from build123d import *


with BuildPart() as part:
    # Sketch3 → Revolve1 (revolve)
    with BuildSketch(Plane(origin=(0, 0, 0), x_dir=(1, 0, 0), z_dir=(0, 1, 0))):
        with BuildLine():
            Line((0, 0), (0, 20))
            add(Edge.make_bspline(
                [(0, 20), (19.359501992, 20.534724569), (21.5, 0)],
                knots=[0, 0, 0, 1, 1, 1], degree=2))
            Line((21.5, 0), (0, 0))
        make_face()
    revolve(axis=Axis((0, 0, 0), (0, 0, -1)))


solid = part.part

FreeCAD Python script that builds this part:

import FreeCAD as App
import Part
import Sketcher
from FreeCAD import Vector

doc = App.newDocument("Part")
body = doc.addObject("PartDesign::Body", "Body")

# Sketch on XZ plane
sketch1 = doc.addObject("Sketcher::SketchObject", "Sketch")
body.addObject(sketch1)
sketch1.AttachmentSupport = (doc.XZ_Plane, [""])
sketch1.MapMode = "FlatFace"
sketch1.addGeometry([
    Part.LineSegment(Vector(0, -20, 0), Vector(0, 0, 0)),
    Part.LineSegment(Vector(0, 0, 0), Vector(21.5, 0, 0)),
    Part.BSplineCurve([Vector(0, -20, 0), Vector(19.359502, -20.534725, 0), Vector(21.5, 0, 0)], [3, 3], [0, 1], False, 2, [1, 1, 1], False),
], False)
sketch1.addConstraint([
    Sketcher.Constraint("Block", 2),
    Sketcher.Constraint("Coincident", 0, 2, 1, 1),
    Sketcher.Constraint("Coincident", 1, 2, 2, 2),
    Sketcher.Constraint("Coincident", 2, 1, 0, 1),
    Sketcher.Constraint("Vertical", 0),
    Sketcher.Constraint("Horizontal", 1),
])
revolution = doc.addObject("PartDesign::Revolution", "Revolution")
body.addObject(revolution)
revolution.Profile = sketch1
revolution.ReferenceAxis = (sketch1, ["V_Axis"])
revolution.Angle = 360

doc.recompute()
